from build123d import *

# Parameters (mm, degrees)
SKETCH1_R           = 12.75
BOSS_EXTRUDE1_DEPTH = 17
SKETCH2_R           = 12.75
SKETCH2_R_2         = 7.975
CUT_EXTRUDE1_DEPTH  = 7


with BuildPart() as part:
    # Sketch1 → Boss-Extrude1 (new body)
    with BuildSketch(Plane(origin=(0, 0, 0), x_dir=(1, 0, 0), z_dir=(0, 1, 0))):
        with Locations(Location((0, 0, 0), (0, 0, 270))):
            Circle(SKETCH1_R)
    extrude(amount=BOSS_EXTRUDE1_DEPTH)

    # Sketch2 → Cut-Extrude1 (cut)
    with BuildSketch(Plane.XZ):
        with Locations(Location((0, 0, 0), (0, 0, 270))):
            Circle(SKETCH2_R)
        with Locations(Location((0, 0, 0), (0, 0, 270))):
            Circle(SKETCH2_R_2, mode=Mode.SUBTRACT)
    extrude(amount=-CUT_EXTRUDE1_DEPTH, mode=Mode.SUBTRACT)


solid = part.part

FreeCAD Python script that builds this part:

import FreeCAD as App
import Part
import Sketcher
Q = App.Units.Quantity

doc = App.newDocument("Part")
params = doc.addObject("Spreadsheet::Sheet", "Params")
for row, (alias, value) in enumerate([
    ("sketch1_diameter", "25.5 mm"),
    ("pad1_length", "17 mm"),
    ("sketch2_diameter", "25.5 mm"),
    ("sketch2_diameter2", "15.95 mm"),
    ("pocket1_length", "7 mm"),
], start=1):
    params.set(f"A{row}", alias)
    params.set(f"B{row}", "=" + value)
    params.setAlias(f"B{row}", alias)

body = doc.addObject("PartDesign::Body", "Body")

sketch1 = doc.addObject("Sketcher::SketchObject", "Sketch")
body.addObject(sketch1)
sketch1.AttachmentSupport = (doc.XZ_Plane, [""])
sketch1.MapMode = "FlatFace"
sketch1.addGeometry(Part.Circle(App.Vector(0, 0, 0), App.Vector(0, 0, 1), 12.75), False)
sketch1.addConstraint(Sketcher.Constraint("Coincident", 0, 3, -1, 1))
sketch1.addConstraint(Sketcher.Constraint("Diameter", 0, Q("25.5 mm")))
sketch1.setExpression("Constraints[1]", "Params.sketch1_diameter")
pad1 = doc.addObject("PartDesign::Pad", "Pad")
body.addObject(pad1)
pad1.Profile = sketch1
pad1.setExpression("Length", "Params.pad1_length")
pad1.Reversed = True

sketch2 = doc.addObject("Sketcher::SketchObject", "Sketch001")
body.addObject(sketch2)
sketch2.AttachmentSupport = (doc.XZ_Plane, [""])
sketch2.MapMode = "FlatFace"
sketch2.addGeometry(Part.Circle(App.Vector(0, 0, 0), App.Vector(0, 0, 1), 12.75), False)
sketch2.addGeometry(Part.Circle(App.Vector(0, 0, 0), App.Vector(0, 0, 1), 7.975), False)
sketch2.addConstraint(Sketcher.Constraint("Coincident", 0, 3, -1, 1))
sketch2.addConstraint(Sketcher.Constraint("Coincident", 1, 3, -1, 1))
sketch2.addConstraint(Sketcher.Constraint("Diameter", 0, Q("25.5 mm")))
sketch2.addConstraint(Sketcher.Constraint("Diameter", 1, Q("15.95 mm")))
sketch2.setExpression("Constraints[2]", "Params.sketch2_diameter")
sketch2.setExpression("Constraints[3]", "Params.sketch2_diameter2")
pocket1 = doc.addObject("PartDesign::Pocket", "Pocket")
body.addObject(pocket1)
pocket1.Profile = sketch2
pocket1.setExpression("Length", "Params.pocket1_length")

doc.recompute()
